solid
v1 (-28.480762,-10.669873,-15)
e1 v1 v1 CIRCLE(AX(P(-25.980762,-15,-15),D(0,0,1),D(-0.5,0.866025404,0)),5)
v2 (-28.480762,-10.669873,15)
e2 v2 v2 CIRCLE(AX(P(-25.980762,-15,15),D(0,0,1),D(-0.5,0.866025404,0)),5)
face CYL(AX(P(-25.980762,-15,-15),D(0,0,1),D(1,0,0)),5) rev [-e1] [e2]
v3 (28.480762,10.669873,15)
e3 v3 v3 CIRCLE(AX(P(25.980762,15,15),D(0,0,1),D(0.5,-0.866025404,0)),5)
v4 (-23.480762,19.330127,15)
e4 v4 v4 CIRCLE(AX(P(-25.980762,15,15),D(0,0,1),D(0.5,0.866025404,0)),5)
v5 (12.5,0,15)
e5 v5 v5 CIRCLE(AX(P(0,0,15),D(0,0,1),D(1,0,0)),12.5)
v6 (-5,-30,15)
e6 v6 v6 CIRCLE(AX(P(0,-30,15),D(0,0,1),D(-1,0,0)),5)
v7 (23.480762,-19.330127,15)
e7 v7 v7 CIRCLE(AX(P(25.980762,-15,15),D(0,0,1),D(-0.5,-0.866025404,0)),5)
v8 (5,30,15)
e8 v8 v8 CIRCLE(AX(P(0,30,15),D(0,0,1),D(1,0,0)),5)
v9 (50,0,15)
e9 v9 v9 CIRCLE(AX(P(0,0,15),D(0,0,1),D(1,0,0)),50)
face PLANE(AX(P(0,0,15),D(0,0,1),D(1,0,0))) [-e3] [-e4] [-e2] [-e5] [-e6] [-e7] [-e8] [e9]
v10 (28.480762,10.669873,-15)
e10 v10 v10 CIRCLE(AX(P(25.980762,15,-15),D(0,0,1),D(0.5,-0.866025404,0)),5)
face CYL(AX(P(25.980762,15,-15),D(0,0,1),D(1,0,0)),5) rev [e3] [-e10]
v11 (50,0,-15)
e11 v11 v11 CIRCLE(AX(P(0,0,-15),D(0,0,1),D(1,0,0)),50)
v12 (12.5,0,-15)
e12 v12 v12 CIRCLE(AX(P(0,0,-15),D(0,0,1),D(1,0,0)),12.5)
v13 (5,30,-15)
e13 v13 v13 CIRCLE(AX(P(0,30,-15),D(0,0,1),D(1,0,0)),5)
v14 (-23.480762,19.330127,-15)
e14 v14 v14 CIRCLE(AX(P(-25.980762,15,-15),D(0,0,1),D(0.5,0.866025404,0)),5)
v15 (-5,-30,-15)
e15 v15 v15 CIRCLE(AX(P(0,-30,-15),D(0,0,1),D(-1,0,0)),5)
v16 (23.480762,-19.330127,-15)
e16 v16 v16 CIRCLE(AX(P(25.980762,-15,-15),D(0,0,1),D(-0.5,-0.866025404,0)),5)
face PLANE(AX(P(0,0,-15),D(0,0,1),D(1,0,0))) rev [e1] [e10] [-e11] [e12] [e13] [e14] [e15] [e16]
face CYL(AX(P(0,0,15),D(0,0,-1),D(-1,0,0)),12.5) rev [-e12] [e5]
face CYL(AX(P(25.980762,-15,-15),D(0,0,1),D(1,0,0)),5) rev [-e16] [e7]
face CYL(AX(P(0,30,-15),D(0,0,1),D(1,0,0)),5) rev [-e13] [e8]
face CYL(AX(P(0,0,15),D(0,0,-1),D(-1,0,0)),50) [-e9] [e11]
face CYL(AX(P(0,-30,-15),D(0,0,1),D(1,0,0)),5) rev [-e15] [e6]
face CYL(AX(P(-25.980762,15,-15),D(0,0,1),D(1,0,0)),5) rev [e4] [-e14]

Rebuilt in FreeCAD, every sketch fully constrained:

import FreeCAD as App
import Part
import Sketcher

V = App.Vector

doc = App.newDocument("Part")
body = doc.addObject("PartDesign::Body", "Body")

# Sketch on XY plane
sketch1 = body.newObject("Sketcher::SketchObject", "Sketch")
sketch1.AttachmentSupport = (doc.getObject("XY_Plane"), [""])
sketch1.MapMode = "FlatFace"
sketch1.addGeometry(Part.Circle(V(0, 0, 0), V(0, 0, 1), 50), False)
sketch1.addGeometry(Part.Circle(V(0, 0, 0), V(0, 0, 1), 12.5), False)
sketch1.addConstraint(Sketcher.Constraint("Coincident", 0, 3, -1, 1))
sketch1.addConstraint(Sketcher.Constraint("Coincident", 1, 3, -1, 1))
sketch1.addConstraint(Sketcher.Constraint("Diameter", 0, 100.0))
sketch1.addConstraint(Sketcher.Constraint("Diameter", 1, 25.0))
pad1 = body.newObject("PartDesign::Pad", "Pad")
pad1.Profile = sketch1
pad1.Length = 30
pad1.Midplane = True

# Sketch on XY plane
sketch2 = body.newObject("Sketcher::SketchObject", "Sketch001")
sketch2.AttachmentSupport = (doc.getObject("XY_Plane"), [""])
sketch2.MapMode = "FlatFace"
sketch2.AttachmentOffset = App.Placement(V(0, 0, 15), App.Rotation())
sketch2.addGeometry(Part.Circle(V(0, 30, 0), V(0, 0, 1), 5), False)
sketch2.addConstraint(Sketcher.Constraint("PointOnObject", 0, 3, -2))
sketch2.addConstraint(Sketcher.Constraint("Diameter", 0, 10.0))
sketch2.addConstraint(Sketcher.Constraint("DistanceY", -1, 1, 0, 3, 30.0))
pocket1 = body.newObject("PartDesign::Pocket", "Pocket")
pocket1.Profile = sketch2
pocket1.Type = "ThroughAll"
doc.recompute()

polarpattern = body.newObject("PartDesign::PolarPattern", "PolarPattern")
polarpattern.Originals = [pocket1]
polarpattern.Axis = (doc.getObject("Z_Axis"), [""])
polarpattern.Angle = 360
polarpattern.Occurrences = 6
body.Tip = polarpattern

doc.recompute()
